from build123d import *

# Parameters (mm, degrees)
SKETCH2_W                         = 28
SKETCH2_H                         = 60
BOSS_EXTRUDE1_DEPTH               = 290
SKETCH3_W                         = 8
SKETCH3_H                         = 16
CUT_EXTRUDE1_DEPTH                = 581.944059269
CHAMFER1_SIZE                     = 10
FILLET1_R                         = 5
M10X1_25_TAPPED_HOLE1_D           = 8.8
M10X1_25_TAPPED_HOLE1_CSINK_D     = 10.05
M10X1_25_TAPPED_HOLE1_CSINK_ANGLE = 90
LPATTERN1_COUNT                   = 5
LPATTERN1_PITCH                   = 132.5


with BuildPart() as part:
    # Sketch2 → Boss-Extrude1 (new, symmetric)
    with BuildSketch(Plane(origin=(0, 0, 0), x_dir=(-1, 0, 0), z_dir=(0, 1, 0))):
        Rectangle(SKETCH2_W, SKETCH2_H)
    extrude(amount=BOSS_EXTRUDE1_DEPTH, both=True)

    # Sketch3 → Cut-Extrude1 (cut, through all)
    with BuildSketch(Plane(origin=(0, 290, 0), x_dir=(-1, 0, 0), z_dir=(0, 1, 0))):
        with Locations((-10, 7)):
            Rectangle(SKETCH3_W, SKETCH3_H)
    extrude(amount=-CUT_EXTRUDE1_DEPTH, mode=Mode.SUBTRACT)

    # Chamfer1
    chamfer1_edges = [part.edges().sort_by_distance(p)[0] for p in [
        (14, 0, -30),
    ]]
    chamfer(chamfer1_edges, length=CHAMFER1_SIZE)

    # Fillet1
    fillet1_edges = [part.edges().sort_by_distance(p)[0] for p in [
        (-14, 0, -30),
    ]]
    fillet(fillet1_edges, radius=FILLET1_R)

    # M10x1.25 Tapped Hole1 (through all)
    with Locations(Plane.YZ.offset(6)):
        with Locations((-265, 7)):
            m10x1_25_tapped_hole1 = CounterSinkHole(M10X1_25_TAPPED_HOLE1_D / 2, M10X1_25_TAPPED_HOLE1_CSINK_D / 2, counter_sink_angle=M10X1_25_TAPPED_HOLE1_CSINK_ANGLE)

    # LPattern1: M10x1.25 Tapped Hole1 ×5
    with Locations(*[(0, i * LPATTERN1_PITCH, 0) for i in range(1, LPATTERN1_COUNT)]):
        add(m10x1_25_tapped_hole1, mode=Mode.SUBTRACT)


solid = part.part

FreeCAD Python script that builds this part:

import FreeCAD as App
import Part
import Sketcher

V = App.Vector
Q = App.Units.Quantity


def edges_at(feature, points):
    """Names of the edges that pass closest to the given points."""
    edges = feature.Shape.Edges
    near = lambda p: min(range(len(edges)), key=lambda i: edges[i].distToShape(Part.Vertex(*p))[0])
    return sorted({f"Edge{near(p) + 1}" for p in points})


def add_polygon(sketch, points):
    """Adds a closed chain of lines whose ends are joined by coincident constraints."""
    first, n = sketch.GeometryCount, len(points)
    for a, b in zip(points, points[1:] + points[:1]):
        sketch.addGeometry(Part.LineSegment(App.Vector(*a, 0), App.Vector(*b, 0)), False)
    for i in range(n):
        sketch.addConstraint(Sketcher.Constraint("Coincident", first + i, 2, first + (i + 1) % n, 1))

doc = App.newDocument("Part")
body = doc.addObject("PartDesign::Body", "Body")

sketch1 = body.newObject("Sketcher::SketchObject", "Sketch")
sketch1.AttachmentSupport = (doc.getObject("XZ_Plane"), [""])
sketch1.MapMode = "FlatFace"
add_polygon(sketch1, [(14, 30), (14, -30), (-14, -30), (-14, 30)])
sketch1.addConstraint(Sketcher.Constraint("Vertical", 0))
sketch1.addConstraint(Sketcher.Constraint("Horizontal", 1))
sketch1.addConstraint(Sketcher.Constraint("Vertical", 2))
sketch1.addConstraint(Sketcher.Constraint("Horizontal", 3))
sketch1.addConstraint(Sketcher.Constraint("Symmetric", 0, 2, 2, 2, -1, 1))
sketch1.addConstraint(Sketcher.Constraint("DistanceX", 1, 2, 1, 1, Q("28 mm")))
sketch1.addConstraint(Sketcher.Constraint("DistanceY", 0, 2, 0, 1, Q("60 mm")))
pad1 = body.newObject("PartDesign::Pad", "Pad")
pad1.Profile = sketch1
pad1.Length = 580
pad1.Midplane = True

sketch2 = body.newObject("Sketcher::SketchObject", "Sketch001")
sketch2.AttachmentSupport = (doc.getObject("XZ_Plane"), [""])
sketch2.MapMode = "FlatFace"
sketch2.AttachmentOffset = App.Placement(V(0, 0, -290), App.Rotation())
add_polygon(sketch2, [(14, 15), (14, -1), (6, -1), (6, 15)])
sketch2.addConstraint(Sketcher.Constraint("Vertical", 0))
sketch2.addConstraint(Sketcher.Constraint("Horizontal", 1))
sketch2.addConstraint(Sketcher.Constraint("Vertical", 2))
sketch2.addConstraint(Sketcher.Constraint("Horizontal", 3))
sketch2.addConstraint(Sketcher.Constraint("DistanceX", 1, 2, 1, 1, Q("8 mm")))
sketch2.addConstraint(Sketcher.Constraint("DistanceY", 0, 2, 0, 1, Q("16 mm")))
sketch2.addConstraint(Sketcher.Constraint("DistanceX", -1, 1, 0, 2, Q("14 mm")))
sketch2.addConstraint(Sketcher.Constraint("DistanceY", 0, 2, -1, 1, Q("1 mm")))
pocket1 = body.newObject("PartDesign::Pocket", "Pocket")
pocket1.Profile = sketch2
pocket1.Type = "ThroughAll"
pocket1.Reversed = True
doc.recompute()

chamfer = body.newObject("PartDesign::Chamfer", "Chamfer")
chamfer.Base = (pocket1, edges_at(pocket1, [(14, 0, -30)]))
chamfer.Size = 10
doc.recompute()

fillet = body.newObject("PartDesign::Fillet", "Fillet")
fillet.Base = (chamfer, edges_at(chamfer, [(-14, 0, -30)]))
fillet.Radius = 5

sketch3 = body.newObject("Sketcher::SketchObject", "Sketch002")
sketch3.AttachmentSupport = (doc.getObject("YZ_Plane"), [""])
sketch3.MapMode = "FlatFace"
sketch3.AttachmentOffset = App.Placement(V(0, 0, 6), App.Rotation())
sketch3.addGeometry(Part.Circle(V(-265, 7, 0), V(0, 0, 1), 4.4), False)
sketch3.addConstraint(Sketcher.Constraint("Diameter", 0, Q("8.8 mm")))
sketch3.addConstraint(Sketcher.Constraint("DistanceX", 0, 3, -1, 1, Q("265 mm")))
sketch3.addConstraint(Sketcher.Constraint("DistanceY", -1, 1, 0, 3, Q("7 mm")))
doc.recompute()
hole = body.newObject("PartDesign::Hole", "Hole")
hole.Profile = sketch3
hole.ThreadType = "None"
hole.Diameter = 8.8
hole.DepthType = "ThroughAll"
hole.HoleCutType = "Countersink"
hole.HoleCutDiameter = 10.05
hole.HoleCutCountersinkAngle = 90
doc.recompute()

linearpattern = body.newObject("PartDesign::LinearPattern", "LinearPattern")
linearpattern.Originals = [hole]
linearpattern.Direction = (doc.getObject("Y_Axis"), [""])
linearpattern.Mode = "offset"
linearpattern.Offset = 132.5
linearpattern.Occurrences = 5
body.Tip = linearpattern

doc.recompute()
